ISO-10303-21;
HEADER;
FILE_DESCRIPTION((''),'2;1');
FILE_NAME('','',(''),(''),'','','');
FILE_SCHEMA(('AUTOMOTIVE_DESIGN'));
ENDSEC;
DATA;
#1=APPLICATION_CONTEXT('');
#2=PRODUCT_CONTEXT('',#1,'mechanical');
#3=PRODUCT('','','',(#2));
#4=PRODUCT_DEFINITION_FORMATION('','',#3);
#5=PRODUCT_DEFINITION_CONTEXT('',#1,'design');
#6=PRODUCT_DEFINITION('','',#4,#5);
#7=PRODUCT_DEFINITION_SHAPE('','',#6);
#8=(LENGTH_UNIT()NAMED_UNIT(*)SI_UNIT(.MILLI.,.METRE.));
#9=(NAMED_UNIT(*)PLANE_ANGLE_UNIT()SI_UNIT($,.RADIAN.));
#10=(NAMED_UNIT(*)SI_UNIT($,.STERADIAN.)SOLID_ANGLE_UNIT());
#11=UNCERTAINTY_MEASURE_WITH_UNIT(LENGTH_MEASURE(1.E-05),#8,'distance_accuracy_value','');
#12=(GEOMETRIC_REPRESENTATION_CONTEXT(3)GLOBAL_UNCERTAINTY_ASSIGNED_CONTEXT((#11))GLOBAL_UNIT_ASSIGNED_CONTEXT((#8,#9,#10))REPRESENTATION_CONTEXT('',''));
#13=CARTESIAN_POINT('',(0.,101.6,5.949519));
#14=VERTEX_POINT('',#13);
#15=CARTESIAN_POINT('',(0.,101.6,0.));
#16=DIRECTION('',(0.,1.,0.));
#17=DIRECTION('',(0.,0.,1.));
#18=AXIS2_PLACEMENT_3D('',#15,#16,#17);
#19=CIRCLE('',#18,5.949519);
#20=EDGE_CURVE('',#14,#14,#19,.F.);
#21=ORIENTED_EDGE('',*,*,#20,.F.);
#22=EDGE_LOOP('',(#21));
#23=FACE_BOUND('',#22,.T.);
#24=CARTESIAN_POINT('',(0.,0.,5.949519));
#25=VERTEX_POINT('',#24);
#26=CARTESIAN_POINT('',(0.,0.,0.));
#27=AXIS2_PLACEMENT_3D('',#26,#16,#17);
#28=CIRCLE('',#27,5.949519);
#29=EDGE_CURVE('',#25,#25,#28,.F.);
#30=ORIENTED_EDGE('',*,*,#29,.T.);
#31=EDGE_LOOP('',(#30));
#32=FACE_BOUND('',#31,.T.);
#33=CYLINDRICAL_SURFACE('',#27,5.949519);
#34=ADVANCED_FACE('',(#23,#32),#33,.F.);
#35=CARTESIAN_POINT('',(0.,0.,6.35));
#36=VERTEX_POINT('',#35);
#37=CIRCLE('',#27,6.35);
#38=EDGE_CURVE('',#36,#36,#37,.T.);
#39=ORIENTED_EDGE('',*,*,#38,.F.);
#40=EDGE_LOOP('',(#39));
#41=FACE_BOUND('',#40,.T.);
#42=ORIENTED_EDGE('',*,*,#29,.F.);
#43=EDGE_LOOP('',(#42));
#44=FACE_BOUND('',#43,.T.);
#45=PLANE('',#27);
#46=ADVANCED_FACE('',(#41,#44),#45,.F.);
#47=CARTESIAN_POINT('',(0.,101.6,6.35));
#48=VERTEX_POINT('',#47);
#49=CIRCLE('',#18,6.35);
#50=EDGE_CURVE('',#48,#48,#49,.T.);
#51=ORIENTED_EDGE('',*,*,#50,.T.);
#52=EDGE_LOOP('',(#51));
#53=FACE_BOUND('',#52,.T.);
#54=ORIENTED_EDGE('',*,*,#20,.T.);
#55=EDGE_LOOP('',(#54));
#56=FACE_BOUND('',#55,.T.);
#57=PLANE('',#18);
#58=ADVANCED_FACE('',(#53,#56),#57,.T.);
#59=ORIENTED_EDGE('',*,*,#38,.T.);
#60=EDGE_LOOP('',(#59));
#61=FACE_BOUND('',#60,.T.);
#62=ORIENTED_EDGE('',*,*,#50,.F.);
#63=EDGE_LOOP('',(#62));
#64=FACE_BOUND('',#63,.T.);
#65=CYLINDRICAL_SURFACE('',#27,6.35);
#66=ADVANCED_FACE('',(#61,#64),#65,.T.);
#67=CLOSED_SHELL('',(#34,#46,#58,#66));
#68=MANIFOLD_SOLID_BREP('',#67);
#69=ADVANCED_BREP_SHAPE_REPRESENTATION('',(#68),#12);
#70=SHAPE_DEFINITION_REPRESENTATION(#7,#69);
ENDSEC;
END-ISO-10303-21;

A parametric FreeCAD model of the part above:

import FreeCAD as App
import Part
import Sketcher
Q = App.Units.Quantity

doc = App.newDocument("Part")
body = doc.addObject("PartDesign::Body", "Body")

sketch1 = body.newObject("Sketcher::SketchObject", "Sketch")
sketch1.AttachmentSupport = (doc.getObject("XZ_Plane"), [""])
sketch1.MapMode = "FlatFace"
sketch1.addGeometry([
    Part.Circle(App.Vector(0, 0, 0), App.Vector(0, 0, 1), 6),
    Part.Circle(App.Vector(0, 0, 0), App.Vector(0, 0, 1), 6),
], False)
sketch1.addConstraint([
    Sketcher.Constraint("Coincident", 0, 3, -1, 1),
    Sketcher.Constraint("Coincident", 1, 3, -1, 1),
    Sketcher.Constraint("Diameter", 0, Q("0.5 in")),
    Sketcher.Constraint("Diameter", 1, 11.899039),
])

sketch2 = body.newObject("Sketcher::SketchObject", "Sketch001")
sketch2.AttachmentSupport = (doc.getObject("XY_Plane"), [""])
sketch2.MapMode = "FlatFace"
sketch2.addGeometry(Part.LineSegment(App.Vector(0, 0, 0), App.Vector(0, 102, 0)), False)
sketch2.addConstraint([
    Sketcher.Constraint("Vertical", 0),
    Sketcher.Constraint("Coincident", 0, 1, -1, 1),
    Sketcher.Constraint("DistanceY", 0, 1, 0, 2, Q("4 in")),
])
doc.recompute()

additivepipe = body.newObject("PartDesign::AdditivePipe", "AdditivePipe")
additivepipe.Profile = sketch1
additivepipe.Spine = (sketch2, ["Edge1"])

doc.recompute()
